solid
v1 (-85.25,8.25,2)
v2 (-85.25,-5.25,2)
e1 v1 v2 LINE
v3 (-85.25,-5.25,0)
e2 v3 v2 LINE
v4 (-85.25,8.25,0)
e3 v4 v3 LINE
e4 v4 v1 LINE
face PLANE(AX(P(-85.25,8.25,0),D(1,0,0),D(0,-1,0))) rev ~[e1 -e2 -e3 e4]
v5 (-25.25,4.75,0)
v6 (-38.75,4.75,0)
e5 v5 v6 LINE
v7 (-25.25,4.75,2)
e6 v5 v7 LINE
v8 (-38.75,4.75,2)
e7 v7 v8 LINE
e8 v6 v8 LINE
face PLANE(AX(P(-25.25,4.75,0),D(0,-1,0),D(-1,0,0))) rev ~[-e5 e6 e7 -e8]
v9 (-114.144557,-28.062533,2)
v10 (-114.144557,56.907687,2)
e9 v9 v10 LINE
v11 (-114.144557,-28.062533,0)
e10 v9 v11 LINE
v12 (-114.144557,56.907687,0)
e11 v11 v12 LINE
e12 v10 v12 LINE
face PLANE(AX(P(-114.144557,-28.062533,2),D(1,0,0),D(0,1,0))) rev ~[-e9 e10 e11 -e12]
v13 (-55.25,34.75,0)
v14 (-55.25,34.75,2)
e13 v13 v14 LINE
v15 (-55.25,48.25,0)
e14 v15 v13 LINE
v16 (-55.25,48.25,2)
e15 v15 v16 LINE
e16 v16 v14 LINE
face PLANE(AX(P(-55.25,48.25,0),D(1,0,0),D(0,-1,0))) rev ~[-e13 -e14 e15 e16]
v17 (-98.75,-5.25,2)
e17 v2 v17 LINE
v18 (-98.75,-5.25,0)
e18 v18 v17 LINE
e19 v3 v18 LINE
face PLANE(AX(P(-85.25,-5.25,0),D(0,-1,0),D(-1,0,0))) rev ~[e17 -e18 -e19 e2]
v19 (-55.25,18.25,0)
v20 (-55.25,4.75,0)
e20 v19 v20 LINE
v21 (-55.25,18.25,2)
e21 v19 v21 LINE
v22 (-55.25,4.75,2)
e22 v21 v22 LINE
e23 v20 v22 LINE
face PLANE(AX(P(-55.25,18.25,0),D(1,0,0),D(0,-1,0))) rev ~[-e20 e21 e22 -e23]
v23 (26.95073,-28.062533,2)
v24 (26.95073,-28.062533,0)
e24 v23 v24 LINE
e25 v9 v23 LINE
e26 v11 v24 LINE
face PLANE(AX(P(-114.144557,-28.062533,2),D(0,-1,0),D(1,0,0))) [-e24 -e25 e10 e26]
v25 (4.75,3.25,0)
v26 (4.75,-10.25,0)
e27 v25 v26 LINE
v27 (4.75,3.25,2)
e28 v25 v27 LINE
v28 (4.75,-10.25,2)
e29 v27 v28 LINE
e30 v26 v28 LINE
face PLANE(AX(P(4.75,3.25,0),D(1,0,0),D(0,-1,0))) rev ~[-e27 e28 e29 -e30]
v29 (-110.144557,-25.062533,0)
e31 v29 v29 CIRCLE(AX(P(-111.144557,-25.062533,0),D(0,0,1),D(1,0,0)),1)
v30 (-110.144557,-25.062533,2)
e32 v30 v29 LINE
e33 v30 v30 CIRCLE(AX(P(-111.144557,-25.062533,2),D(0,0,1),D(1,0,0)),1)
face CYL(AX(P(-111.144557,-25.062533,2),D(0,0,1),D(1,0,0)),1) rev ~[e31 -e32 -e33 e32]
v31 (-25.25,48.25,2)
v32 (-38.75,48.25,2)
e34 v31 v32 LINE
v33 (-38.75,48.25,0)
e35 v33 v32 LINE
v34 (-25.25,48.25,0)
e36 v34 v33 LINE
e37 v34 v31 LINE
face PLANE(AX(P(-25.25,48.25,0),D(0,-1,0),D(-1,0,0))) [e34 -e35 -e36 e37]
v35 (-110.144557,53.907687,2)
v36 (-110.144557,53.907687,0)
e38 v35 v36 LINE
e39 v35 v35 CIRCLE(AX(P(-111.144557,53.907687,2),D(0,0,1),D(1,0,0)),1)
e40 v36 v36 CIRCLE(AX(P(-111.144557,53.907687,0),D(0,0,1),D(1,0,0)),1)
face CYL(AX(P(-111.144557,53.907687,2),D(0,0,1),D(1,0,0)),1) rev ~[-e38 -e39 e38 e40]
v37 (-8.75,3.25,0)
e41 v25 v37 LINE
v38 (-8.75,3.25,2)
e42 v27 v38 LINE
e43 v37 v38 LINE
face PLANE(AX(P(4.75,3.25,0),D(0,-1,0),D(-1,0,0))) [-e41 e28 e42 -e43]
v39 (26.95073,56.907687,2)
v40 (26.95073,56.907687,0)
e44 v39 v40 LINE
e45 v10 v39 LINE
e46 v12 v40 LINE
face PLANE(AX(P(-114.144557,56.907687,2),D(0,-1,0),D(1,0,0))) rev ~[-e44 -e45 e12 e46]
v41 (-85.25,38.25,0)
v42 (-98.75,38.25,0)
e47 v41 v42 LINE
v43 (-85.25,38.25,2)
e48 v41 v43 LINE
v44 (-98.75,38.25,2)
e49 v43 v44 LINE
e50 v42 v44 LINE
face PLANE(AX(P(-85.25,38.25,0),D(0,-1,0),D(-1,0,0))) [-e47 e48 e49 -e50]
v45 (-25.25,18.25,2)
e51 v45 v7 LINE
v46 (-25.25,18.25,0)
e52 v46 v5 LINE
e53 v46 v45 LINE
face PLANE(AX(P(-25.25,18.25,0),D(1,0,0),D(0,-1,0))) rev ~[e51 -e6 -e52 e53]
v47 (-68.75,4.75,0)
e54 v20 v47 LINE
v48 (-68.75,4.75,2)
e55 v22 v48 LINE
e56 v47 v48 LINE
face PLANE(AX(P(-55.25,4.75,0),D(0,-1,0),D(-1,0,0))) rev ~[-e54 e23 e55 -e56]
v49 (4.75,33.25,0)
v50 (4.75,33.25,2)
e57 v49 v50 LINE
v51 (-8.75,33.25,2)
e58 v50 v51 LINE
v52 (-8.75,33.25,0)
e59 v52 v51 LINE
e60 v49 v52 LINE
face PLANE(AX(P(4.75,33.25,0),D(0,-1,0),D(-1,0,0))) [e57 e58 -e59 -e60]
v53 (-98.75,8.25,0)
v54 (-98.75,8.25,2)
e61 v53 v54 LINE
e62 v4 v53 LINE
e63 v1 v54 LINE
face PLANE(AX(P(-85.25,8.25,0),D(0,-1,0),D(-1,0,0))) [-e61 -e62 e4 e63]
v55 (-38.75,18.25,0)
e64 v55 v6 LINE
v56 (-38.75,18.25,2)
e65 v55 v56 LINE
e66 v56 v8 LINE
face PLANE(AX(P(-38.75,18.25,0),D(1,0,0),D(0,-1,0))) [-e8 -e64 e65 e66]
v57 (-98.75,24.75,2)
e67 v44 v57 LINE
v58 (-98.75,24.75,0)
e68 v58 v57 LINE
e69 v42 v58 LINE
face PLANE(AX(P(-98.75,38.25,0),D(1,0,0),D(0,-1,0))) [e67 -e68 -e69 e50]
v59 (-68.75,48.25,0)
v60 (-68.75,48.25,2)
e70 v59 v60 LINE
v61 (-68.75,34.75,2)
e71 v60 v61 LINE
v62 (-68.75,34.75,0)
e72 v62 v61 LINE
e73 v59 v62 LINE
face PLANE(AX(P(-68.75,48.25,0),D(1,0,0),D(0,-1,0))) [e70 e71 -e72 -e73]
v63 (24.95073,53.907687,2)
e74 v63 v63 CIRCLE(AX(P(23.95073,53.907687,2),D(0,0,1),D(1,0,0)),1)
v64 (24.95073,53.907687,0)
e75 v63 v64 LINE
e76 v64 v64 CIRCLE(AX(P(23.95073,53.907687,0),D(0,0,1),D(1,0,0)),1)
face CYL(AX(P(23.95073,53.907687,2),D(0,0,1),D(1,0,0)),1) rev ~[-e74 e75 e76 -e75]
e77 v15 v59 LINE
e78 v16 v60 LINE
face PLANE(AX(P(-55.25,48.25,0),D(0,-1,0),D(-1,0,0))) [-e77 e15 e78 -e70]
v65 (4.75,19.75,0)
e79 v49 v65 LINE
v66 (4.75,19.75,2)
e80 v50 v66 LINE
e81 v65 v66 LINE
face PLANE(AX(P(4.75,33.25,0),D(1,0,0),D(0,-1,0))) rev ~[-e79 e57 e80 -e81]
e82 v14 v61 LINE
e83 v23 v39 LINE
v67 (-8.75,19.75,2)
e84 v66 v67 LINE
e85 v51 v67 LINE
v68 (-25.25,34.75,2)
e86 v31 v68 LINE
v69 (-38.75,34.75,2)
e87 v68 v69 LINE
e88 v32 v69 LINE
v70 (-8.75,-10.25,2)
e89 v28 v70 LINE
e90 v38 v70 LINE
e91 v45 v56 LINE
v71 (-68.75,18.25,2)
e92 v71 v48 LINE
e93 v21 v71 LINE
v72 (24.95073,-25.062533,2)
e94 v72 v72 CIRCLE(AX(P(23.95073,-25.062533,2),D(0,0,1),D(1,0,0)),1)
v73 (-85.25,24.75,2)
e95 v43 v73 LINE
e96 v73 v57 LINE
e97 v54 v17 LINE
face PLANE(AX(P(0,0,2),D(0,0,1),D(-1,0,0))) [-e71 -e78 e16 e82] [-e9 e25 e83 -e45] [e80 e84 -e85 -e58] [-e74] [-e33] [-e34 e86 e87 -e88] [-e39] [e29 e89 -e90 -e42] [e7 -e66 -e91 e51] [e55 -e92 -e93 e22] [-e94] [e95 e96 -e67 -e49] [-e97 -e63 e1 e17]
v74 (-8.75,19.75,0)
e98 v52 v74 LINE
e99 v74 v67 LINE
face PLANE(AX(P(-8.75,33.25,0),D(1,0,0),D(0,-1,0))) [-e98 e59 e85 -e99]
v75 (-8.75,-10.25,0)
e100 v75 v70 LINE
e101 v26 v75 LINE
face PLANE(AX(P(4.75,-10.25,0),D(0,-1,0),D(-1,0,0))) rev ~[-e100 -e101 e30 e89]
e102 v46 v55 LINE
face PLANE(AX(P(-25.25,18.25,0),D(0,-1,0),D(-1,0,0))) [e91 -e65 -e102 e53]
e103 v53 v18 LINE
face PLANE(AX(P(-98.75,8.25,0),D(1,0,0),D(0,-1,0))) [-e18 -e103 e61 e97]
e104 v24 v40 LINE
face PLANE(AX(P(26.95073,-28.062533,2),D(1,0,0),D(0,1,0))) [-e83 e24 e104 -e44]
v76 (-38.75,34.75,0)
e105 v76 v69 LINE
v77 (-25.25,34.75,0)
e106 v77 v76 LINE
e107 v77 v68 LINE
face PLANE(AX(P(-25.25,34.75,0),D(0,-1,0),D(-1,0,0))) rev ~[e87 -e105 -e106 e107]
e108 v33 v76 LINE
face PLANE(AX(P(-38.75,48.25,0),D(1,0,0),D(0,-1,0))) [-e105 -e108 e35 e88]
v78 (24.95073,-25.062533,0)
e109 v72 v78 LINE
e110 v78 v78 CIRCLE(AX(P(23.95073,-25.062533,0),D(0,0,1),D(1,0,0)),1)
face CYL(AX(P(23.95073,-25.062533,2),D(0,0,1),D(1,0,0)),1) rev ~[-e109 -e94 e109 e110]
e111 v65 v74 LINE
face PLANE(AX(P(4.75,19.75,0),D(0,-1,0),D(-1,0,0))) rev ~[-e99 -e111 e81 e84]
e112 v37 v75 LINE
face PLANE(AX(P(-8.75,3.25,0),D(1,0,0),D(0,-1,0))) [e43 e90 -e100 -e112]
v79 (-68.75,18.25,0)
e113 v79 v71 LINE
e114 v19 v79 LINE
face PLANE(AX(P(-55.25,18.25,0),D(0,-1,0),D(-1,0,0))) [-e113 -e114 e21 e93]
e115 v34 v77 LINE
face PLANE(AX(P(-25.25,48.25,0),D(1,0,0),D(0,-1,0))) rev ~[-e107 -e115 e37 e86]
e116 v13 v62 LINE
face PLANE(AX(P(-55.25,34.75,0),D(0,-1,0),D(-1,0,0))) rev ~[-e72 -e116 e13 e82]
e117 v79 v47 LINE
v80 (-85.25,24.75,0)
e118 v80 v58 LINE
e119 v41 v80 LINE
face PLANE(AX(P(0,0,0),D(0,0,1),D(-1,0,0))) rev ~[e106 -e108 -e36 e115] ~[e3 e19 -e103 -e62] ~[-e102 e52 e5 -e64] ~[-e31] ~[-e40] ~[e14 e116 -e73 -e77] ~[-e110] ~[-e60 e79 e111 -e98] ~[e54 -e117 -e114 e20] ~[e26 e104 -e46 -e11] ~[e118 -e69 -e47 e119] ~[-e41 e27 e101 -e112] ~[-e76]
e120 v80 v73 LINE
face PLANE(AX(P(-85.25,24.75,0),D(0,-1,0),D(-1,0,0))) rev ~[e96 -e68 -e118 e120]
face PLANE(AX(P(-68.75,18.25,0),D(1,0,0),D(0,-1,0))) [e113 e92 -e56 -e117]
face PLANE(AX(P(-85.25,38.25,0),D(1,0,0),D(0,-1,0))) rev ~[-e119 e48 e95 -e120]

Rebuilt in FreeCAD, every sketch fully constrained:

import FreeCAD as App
import Part
import Sketcher

V = App.Vector

doc = App.newDocument("Part")
params = doc.addObject("Spreadsheet::Sheet", "Params")
for row, (alias, value) in enumerate([
    ("sketch1_width", "250 mm"),
    ("sketch1_height", "123 mm"),
    ("sketch1_width2", "13.5 mm"),
    ("pad1_length", "2 mm"),
    ("sketch2_width", "250 mm"),
    ("sketch2_height", "123 mm"),
    ("pocket1_length", "62 mm"),
    ("sketch3_diameter", "2 mm"),
    ("pocket2_length", "62 mm"),
], start=1):
    params.set(f"A{row}", alias)
    params.set(f"B{row}", "=" + value)
    params.setAlias(f"B{row}", alias)

body = doc.addObject("PartDesign::Body", "Body")

# Sketch on XY plane
sketch1 = body.newObject("Sketcher::SketchObject", "Sketch")
sketch1.AttachmentSupport = (doc.getObject("XY_Plane"), [""])
sketch1.MapMode = "FlatFace"
sketch1.addGeometry([
    Part.LineSegment(V(125, -62, 0), V(125, 62, 0)),  # 0
    Part.LineSegment(V(125, 62, 0), V(-125, 62, 0)),  # 1
    Part.LineSegment(V(-125, 62, 0), V(-125, -62, 0)),  # 2
    Part.LineSegment(V(-125, -62, 0), V(125, -62, 0)),  # 3
    Part.LineSegment(V(-39, 48, 0), V(-25, 48, 0)),  # 4
    Part.LineSegment(V(-25, 48, 0), V(-25, 35, 0)),  # 5
    Part.LineSegment(V(-25, 35, 0), V(-39, 35, 0)),  # 6
    Part.LineSegment(V(-39, 35, 0), V(-39, 48, 0)),  # 7
    Part.LineSegment(V(-9, 33, 0), V(5, 33, 0)),  # 8
    Part.LineSegment(V(5, 33, 0), V(5, 20, 0)),  # 9
    Part.LineSegment(V(5, 20, 0), V(-9, 20, 0)),  # 10
    Part.LineSegment(V(-9, 20, 0), V(-9, 33, 0)),  # 11
    Part.LineSegment(V(-69, 48, 0), V(-55, 48, 0)),  # 12
    Part.LineSegment(V(-55, 48, 0), V(-55, 35, 0)),  # 13
    Part.LineSegment(V(-55, 35, 0), V(-69, 35, 0)),  # 14
    Part.LineSegment(V(-69, 35, 0), V(-69, 48, 0)),  # 15
    Part.LineSegment(V(-99, 38, 0), V(-85, 38, 0)),  # 16
    Part.LineSegment(V(-85, 38, 0), V(-85, 25, 0)),  # 17
    Part.LineSegment(V(-85, 25, 0), V(-99, 25, 0)),  # 18
    Part.LineSegment(V(-99, 25, 0), V(-99, 38, 0)),  # 19
    Part.LineSegment(V(-39, 18, 0), V(-25, 18, 0)),  # 20
    Part.LineSegment(V(-25, 18, 0), V(-25, 5, 0)),  # 21
    Part.LineSegment(V(-25, 5, 0), V(-39, 5, 0)),  # 22
    Part.LineSegment(V(-39, 5, 0), V(-39, 18, 0)),  # 23
    Part.LineSegment(V(-9, 3, 0), V(5, 3, 0)),  # 24
    Part.LineSegment(V(5, 3, 0), V(5, -10, 0)),  # 25
    Part.LineSegment(V(5, -10, 0), V(-9, -10, 0)),  # 26
    Part.LineSegment(V(-9, -10, 0), V(-9, 3, 0)),  # 27
    Part.LineSegment(V(-69, 18, 0), V(-55, 18, 0)),  # 28
    Part.LineSegment(V(-55, 18, 0), V(-55, 5, 0)),  # 29
    Part.LineSegment(V(-55, 5, 0), V(-69, 5, 0)),  # 30
    Part.LineSegment(V(-69, 5, 0), V(-69, 18, 0)),  # 31
    Part.LineSegment(V(-99, 8, 0), V(-85, 8, 0)),  # 32
    Part.LineSegment(V(-85, 8, 0), V(-85, -5, 0)),  # 33
    Part.LineSegment(V(-85, -5, 0), V(-99, -5, 0)),  # 34
    Part.LineSegment(V(-99, -5, 0), V(-99, 8, 0)),  # 35
], False)
sketch1.addConstraint([
    Sketcher.Constraint("Coincident", 0, 2, 1, 1),
    Sketcher.Constraint("Coincident", 1, 2, 2, 1),
    Sketcher.Constraint("Coincident", 2, 2, 3, 1),
    Sketcher.Constraint("Coincident", 3, 2, 0, 1),
    Sketcher.Constraint("Coincident", 4, 2, 5, 1),
    Sketcher.Constraint("Coincident", 5, 2, 6, 1),
    Sketcher.Constraint("Coincident", 6, 2, 7, 1),
    Sketcher.Constraint("Coincident", 7, 2, 4, 1),
    Sketcher.Constraint("Coincident", 8, 2, 9, 1),
    Sketcher.Constraint("Coincident", 9, 2, 10, 1),
    Sketcher.Constraint("Coincident", 10, 2, 11, 1),
    Sketcher.Constraint("Coincident", 11, 2, 8, 1),
    Sketcher.Constraint("Coincident", 12, 2, 13, 1),
    Sketcher.Constraint("Coincident", 13, 2, 14, 1),
    Sketcher.Constraint("Coincident", 14, 2, 15, 1),
    Sketcher.Constraint("Coincident", 15, 2, 12, 1),
    Sketcher.Constraint("Coincident", 16, 2, 17, 1),
    Sketcher.Constraint("Coincident", 17, 2, 18, 1),
    Sketcher.Constraint("Coincident", 18, 2, 19, 1),
    Sketcher.Constraint("Coincident", 19, 2, 16, 1),
    Sketcher.Constraint("Coincident", 20, 2, 21, 1),
    Sketcher.Constraint("Coincident", 21, 2, 22, 1),
    Sketcher.Constraint("Coincident", 22, 2, 23, 1),
    Sketcher.Constraint("Coincident", 23, 2, 20, 1),
    Sketcher.Constraint("Coincident", 24, 2, 25, 1),
    Sketcher.Constraint("Coincident", 25, 2, 26, 1),
    Sketcher.Constraint("Coincident", 26, 2, 27, 1),
    Sketcher.Constraint("Coincident", 27, 2, 24, 1),
    Sketcher.Constraint("Coincident", 28, 2, 29, 1),
    Sketcher.Constraint("Coincident", 29, 2, 30, 1),
    Sketcher.Constraint("Coincident", 30, 2, 31, 1),
    Sketcher.Constraint("Coincident", 31, 2, 28, 1),
    Sketcher.Constraint("Coincident", 32, 2, 33, 1),
    Sketcher.Constraint("Coincident", 33, 2, 34, 1),
    Sketcher.Constraint("Coincident", 34, 2, 35, 1),
    Sketcher.Constraint("Coincident", 35, 2, 32, 1),
    Sketcher.Constraint("Vertical", 0),
    Sketcher.Constraint("Horizontal", 1),
    Sketcher.Constraint("Vertical", 2),
    Sketcher.Constraint("Horizontal", 3),
    Sketcher.Constraint("Horizontal", 4),
    Sketcher.Constraint("Vertical", 5),
    Sketcher.Constraint("Horizontal", 6),
    Sketcher.Constraint("Vertical", 7),
    Sketcher.Constraint("Horizontal", 8),
    Sketcher.Constraint("Vertical", 9),
    Sketcher.Constraint("Horizontal", 10),
    Sketcher.Constraint("Vertical", 11),
    Sketcher.Constraint("Horizontal", 12),
    Sketcher.Constraint("Vertical", 13),
    Sketcher.Constraint("Horizontal", 14),
    Sketcher.Constraint("Vertical", 15),
    Sketcher.Constraint("Horizontal", 16),
    Sketcher.Constraint("Vertical", 17),
    Sketcher.Constraint("Horizontal", 18),
    Sketcher.Constraint("Vertical", 19),
    Sketcher.Constraint("Horizontal", 20),
    Sketcher.Constraint("Vertical", 21),
    Sketcher.Constraint("Horizontal", 22),
    Sketcher.Constraint("Vertical", 23),
    Sketcher.Constraint("Horizontal", 24),
    Sketcher.Constraint("Vertical", 25),
    Sketcher.Constraint("Horizontal", 26),
    Sketcher.Constraint("Vertical", 27),
    Sketcher.Constraint("Horizontal", 28),
    Sketcher.Constraint("Vertical", 29),
    Sketcher.Constraint("Horizontal", 30),
    Sketcher.Constraint("Vertical", 31),
    Sketcher.Constraint("Horizontal", 32),
    Sketcher.Constraint("Vertical", 33),
    Sketcher.Constraint("Horizontal", 34),
    Sketcher.Constraint("Vertical", 35),
    Sketcher.Constraint("Symmetric", 0, 2, 2, 2, -1, 1),
    Sketcher.Constraint("Horizontal", 7, 2, 12, 2),
    Sketcher.Constraint("Horizontal", 6, 2, 13, 2),
    Sketcher.Constraint("Horizontal", 23, 2, 28, 2),
    Sketcher.Constraint("Horizontal", 22, 2, 29, 2),
    Sketcher.Constraint("Vertical", 5, 2, 20, 2),
    Sketcher.Constraint("Vertical", 7, 2, 22, 2),
    Sketcher.Constraint("Vertical", 9, 2, 24, 2),
    Sketcher.Constraint("Vertical", 11, 2, 26, 2),
    Sketcher.Constraint("Vertical", 13, 2, 28, 2),
    Sketcher.Constraint("Vertical", 15, 2, 30, 2),
    Sketcher.Constraint("Vertical", 17, 2, 32, 2),
    Sketcher.Constraint("Vertical", 19, 2, 34, 2),
    Sketcher.Constraint("Equal", 6, 8),
    Sketcher.Constraint("Equal", 10, 12),
    Sketcher.Constraint("Equal", 14, 16),
    Sketcher.Constraint("Equal", 34, 5),
    Sketcher.Constraint("Equal", 7, 9),
    Sketcher.Constraint("Equal", 15, 17),
    Sketcher.Constraint("Equal", 19, 21),
    Sketcher.Constraint("Equal", 23, 25),
    Sketcher.Constraint("Equal", 31, 33),
    Sketcher.Constraint("DistanceX", 1, 2, 1, 1, 250.0),
    Sketcher.Constraint("DistanceY", 0, 1, 0, 2, 123.0),
    Sketcher.Constraint("DistanceX", 4, 1, 4, 2, 13.5),
    Sketcher.Constraint("DistanceX", 5, 2, 8, 2, 30.0),
    Sketcher.Constraint("DistanceY", 8, 2, 4, 2, 15.0),
    Sketcher.Constraint("DistanceX", 12, 2, 4, 2, 30.0),
    Sketcher.Constraint("DistanceY", 16, 2, 15, 2, 10.0),
    Sketcher.Constraint("DistanceX", 16, 2, 13, 2, 30.0),
    Sketcher.Constraint("DistanceY", 20, 2, 11, 2, 15.0),
    Sketcher.Constraint("DistanceY", 24, 2, 8, 2, 30.0),
    Sketcher.Constraint("DistanceY", 32, 2, 31, 2, 10.0),
    Sketcher.Constraint("DistanceX", 4, 2, -1, 1, 25.25),
    Sketcher.Constraint("DistanceY", -1, 1, 4, 2, 48.25),
])
sketch1.setExpression("Constraints[94]", "Params.sketch1_width")
sketch1.setExpression("Constraints[95]", "Params.sketch1_height")
sketch1.setExpression("Constraints[96]", "Params.sketch1_width2")
pad1 = body.newObject("PartDesign::Pad", "Pad")
pad1.Profile = sketch1
pad1.setExpression("Length", "Params.pad1_length")

# Sketch on XY plane
sketch2 = body.newObject("Sketcher::SketchObject", "Sketch001")
sketch2.AttachmentSupport = (doc.getObject("XY_Plane"), [""])
sketch2.MapMode = "FlatFace"
sketch2.AttachmentOffset = App.Placement(V(0, 0, 2), App.Rotation())
sketch2.addGeometry([
    Part.LineSegment(V(-125, 62, 0), V(-125, -62, 0)),  # 0
    Part.LineSegment(V(-125, -62, 0), V(125, -62, 0)),  # 1
    Part.LineSegment(V(125, -62, 0), V(125, 62, 0)),  # 2
    Part.LineSegment(V(125, 62, 0), V(-125, 62, 0)),  # 3
    Part.LineSegment(V(27, -28, 0), V(-114, -28, 0)),  # 4
    Part.LineSegment(V(-114, -28, 0), V(-114, 57, 0)),  # 5
    Part.LineSegment(V(-114, 57, 0), V(27, 57, 0)),  # 6
    Part.LineSegment(V(27, 57, 0), V(27, -28, 0)),  # 7
], False)
sketch2.addConstraint([
    Sketcher.Constraint("Coincident", 0, 2, 1, 1),
    Sketcher.Constraint("Coincident", 1, 2, 2, 1),
    Sketcher.Constraint("Coincident", 2, 2, 3, 1),
    Sketcher.Constraint("Coincident", 3, 2, 0, 1),
    Sketcher.Constraint("Coincident", 4, 2, 5, 1),
    Sketcher.Constraint("Coincident", 5, 2, 6, 1),
    Sketcher.Constraint("Coincident", 6, 2, 7, 1),
    Sketcher.Constraint("Coincident", 7, 2, 4, 1),
    Sketcher.Constraint("Vertical", 0),
    Sketcher.Constraint("Horizontal", 1),
    Sketcher.Constraint("Vertical", 2),
    Sketcher.Constraint("Horizontal", 3),
    Sketcher.Constraint("Horizontal", 4),
    Sketcher.Constraint("Vertical", 5),
    Sketcher.Constraint("Horizontal", 6),
    Sketcher.Constraint("Vertical", 7),
    Sketcher.Constraint("Symmetric", 0, 2, 2, 2, -1, 1),
    Sketcher.Constraint("DistanceX", 1, 1, 1, 2, 250.0),
    Sketcher.Constraint("DistanceY", 0, 2, 0, 1, 123.0),
    Sketcher.Constraint("DistanceY", 5, 1, 5, 2, 84.97022),
    Sketcher.Constraint("DistanceX", 4, 2, 4, 1, 141.095287),
    Sketcher.Constraint("DistanceX", -1, 1, 6, 2, 26.95073),
    Sketcher.Constraint("DistanceY", 4, 2, -1, 1, 28.062533),
])
sketch2.setExpression("Constraints[17]", "Params.sketch2_width")
sketch2.setExpression("Constraints[18]", "Params.sketch2_height")
pocket1 = body.newObject("PartDesign::Pocket", "Pocket")
pocket1.Profile = sketch2
pocket1.setExpression("Length", "Params.pocket1_length")

# Sketch on XY plane
sketch3 = body.newObject("Sketcher::SketchObject", "Sketch002")
sketch3.AttachmentSupport = (doc.getObject("XY_Plane"), [""])
sketch3.MapMode = "FlatFace"
sketch3.AttachmentOffset = App.Placement(V(0, 0, 2), App.Rotation())
sketch3.addGeometry([
    Part.Circle(V(24, -25.1, 0), V(0, 0, 1), 1),
    Part.Circle(V(24, 53.9, 0), V(0, 0, 1), 1),
    Part.Circle(V(-111.1, 53.9, 0), V(0, 0, 1), 1),
    Part.Circle(V(-111.1, -25.1, 0), V(0, 0, 1), 1),
], False)
sketch3.addConstraint([
    Sketcher.Constraint("Equal", 0, 1),
    Sketcher.Constraint("Equal", 1, 2),
    Sketcher.Constraint("Equal", 2, 3),
    Sketcher.Constraint("Horizontal", 1, 3, 2, 3),
    Sketcher.Constraint("Horizontal", 0, 3, 3, 3),
    Sketcher.Constraint("Vertical", 0, 3, 1, 3),
    Sketcher.Constraint("Vertical", 2, 3, 3, 3),
    Sketcher.Constraint("Diameter", 0, 2.0),
    Sketcher.Constraint("DistanceX", -1, 1, 0, 3, 23.95073),
    Sketcher.Constraint("DistanceY", 0, 3, 1, 3, 78.97022),
    Sketcher.Constraint("DistanceY", 0, 3, -1, 1, 25.062533),
    Sketcher.Constraint("DistanceX", 2, 3, -1, 1, 111.144557),
])
sketch3.setExpression("Constraints[7]", "Params.sketch3_diameter")
pocket2 = body.newObject("PartDesign::Pocket", "Pocket001")
pocket2.Profile = sketch3
pocket2.setExpression("Length", "Params.pocket2_length")

doc.recompute()
